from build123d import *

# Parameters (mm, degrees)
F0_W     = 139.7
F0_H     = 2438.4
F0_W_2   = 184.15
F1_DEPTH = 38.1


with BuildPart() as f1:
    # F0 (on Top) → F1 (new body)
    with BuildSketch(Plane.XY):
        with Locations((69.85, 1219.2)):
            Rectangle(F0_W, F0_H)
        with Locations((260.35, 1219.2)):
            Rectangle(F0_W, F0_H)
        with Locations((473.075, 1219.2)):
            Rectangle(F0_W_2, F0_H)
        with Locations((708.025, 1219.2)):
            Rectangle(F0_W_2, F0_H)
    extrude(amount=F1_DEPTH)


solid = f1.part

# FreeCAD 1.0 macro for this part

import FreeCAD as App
import Part
import Sketcher

V = App.Vector
Q = App.Units.Quantity

doc = App.newDocument("Part")
body = doc.addObject("PartDesign::Body", "Body")
body.AllowCompound = True

sketch1 = doc.addObject("Sketcher::SketchObject", "Sketch")
body.addObject(sketch1)
sketch1.AttachmentSupport = (doc.XY_Plane, [""])
sketch1.MapMode = "FlatFace"
sketch1.addGeometry(Part.LineSegment(V(0, 2438.4, 0), V(0, 0, 0)), False)
sketch1.addGeometry(Part.LineSegment(V(0, 0, 0), V(139.7, 0, 0)), False)
sketch1.addGeometry(Part.LineSegment(V(139.7, 0, 0), V(139.7, 2438.4, 0)), False)
sketch1.addGeometry(Part.LineSegment(V(139.7, 2438.4, 0), V(0, 2438.4, 0)), False)
sketch1.addGeometry(Part.LineSegment(V(190.5, 2438.4, 0), V(190.5, 0, 0)), False)
sketch1.addGeometry(Part.LineSegment(V(190.5, 0, 0), V(330.2, 0, 0)), False)
sketch1.addGeometry(Part.LineSegment(V(330.2, 0, 0), V(330.2, 2438.4, 0)), False)
sketch1.addGeometry(Part.LineSegment(V(330.2, 2438.4, 0), V(190.5, 2438.4, 0)), False)
sketch1.addGeometry(Part.LineSegment(V(381, 2438.4, 0), V(381, 0, 0)), False)
sketch1.addGeometry(Part.LineSegment(V(381, 0, 0), V(565.15, 0, 0)), False)
sketch1.addGeometry(Part.LineSegment(V(565.15, 0, 0), V(565.15, 2438.4, 0)), False)
sketch1.addGeometry(Part.LineSegment(V(565.15, 2438.4, 0), V(381, 2438.4, 0)), False)
sketch1.addGeometry(Part.LineSegment(V(615.95, 2438.4, 0), V(615.95, 0, 0)), False)
sketch1.addGeometry(Part.LineSegment(V(615.95, 0, 0), V(800.1, 0, 0)), False)
sketch1.addGeometry(Part.LineSegment(V(800.1, 0, 0), V(800.1, 2438.4, 0)), False)
sketch1.addGeometry(Part.LineSegment(V(800.1, 2438.4, 0), V(615.95, 2438.4, 0)), False)
sketch1.addConstraint(Sketcher.Constraint("Coincident", 0, 2, 1, 1))
sketch1.addConstraint(Sketcher.Constraint("Coincident", 1, 2, 2, 1))
sketch1.addConstraint(Sketcher.Constraint("Coincident", 2, 2, 3, 1))
sketch1.addConstraint(Sketcher.Constraint("Coincident", 3, 2, 0, 1))
sketch1.addConstraint(Sketcher.Constraint("Coincident", 4, 2, 5, 1))
sketch1.addConstraint(Sketcher.Constraint("Coincident", 5, 2, 6, 1))
sketch1.addConstraint(Sketcher.Constraint("Coincident", 6, 2, 7, 1))
sketch1.addConstraint(Sketcher.Constraint("Coincident", 7, 2, 4, 1))
sketch1.addConstraint(Sketcher.Constraint("Coincident", 8, 2, 9, 1))
sketch1.addConstraint(Sketcher.Constraint("Coincident", 9, 2, 10, 1))
sketch1.addConstraint(Sketcher.Constraint("Coincident", 10, 2, 11, 1))
sketch1.addConstraint(Sketcher.Constraint("Coincident", 11, 2, 8, 1))
sketch1.addConstraint(Sketcher.Constraint("Coincident", 12, 2, 13, 1))
sketch1.addConstraint(Sketcher.Constraint("Coincident", 13, 2, 14, 1))
sketch1.addConstraint(Sketcher.Constraint("Coincident", 14, 2, 15, 1))
sketch1.addConstraint(Sketcher.Constraint("Coincident", 15, 2, 12, 1))
sketch1.addConstraint(Sketcher.Constraint("Vertical", 0))
sketch1.addConstraint(Sketcher.Constraint("Horizontal", 1))
sketch1.addConstraint(Sketcher.Constraint("Vertical", 2))
sketch1.addConstraint(Sketcher.Constraint("Horizontal", 3))
sketch1.addConstraint(Sketcher.Constraint("Vertical", 4))
sketch1.addConstraint(Sketcher.Constraint("Horizontal", 5))
sketch1.addConstraint(Sketcher.Constraint("Vertical", 6))
sketch1.addConstraint(Sketcher.Constraint("Horizontal", 7))
sketch1.addConstraint(Sketcher.Constraint("Vertical", 8))
sketch1.addConstraint(Sketcher.Constraint("Horizontal", 9))
sketch1.addConstraint(Sketcher.Constraint("Vertical", 10))
sketch1.addConstraint(Sketcher.Constraint("Horizontal", 11))
sketch1.addConstraint(Sketcher.Constraint("Vertical", 12))
sketch1.addConstraint(Sketcher.Constraint("Horizontal", 13))
sketch1.addConstraint(Sketcher.Constraint("Vertical", 14))
sketch1.addConstraint(Sketcher.Constraint("Horizontal", 15))
sketch1.addConstraint(Sketcher.Constraint("Coincident", 0, 2, -1, 1))
sketch1.addConstraint(Sketcher.Constraint("PointOnObject", 4, 2, -1))
sketch1.addConstraint(Sketcher.Constraint("PointOnObject", 8, 2, -1))
sketch1.addConstraint(Sketcher.Constraint("PointOnObject", 12, 2, -1))
sketch1.addConstraint(Sketcher.Constraint("Horizontal", 3, 2, 6, 2))
sketch1.addConstraint(Sketcher.Constraint("Horizontal", 7, 2, 10, 2))
sketch1.addConstraint(Sketcher.Constraint("Horizontal", 11, 2, 14, 2))
sketch1.addConstraint(Sketcher.Constraint("Equal", 3, 5))
sketch1.addConstraint(Sketcher.Constraint("Equal", 11, 13))
sketch1.addConstraint(Sketcher.Constraint("DistanceY", 0, 2, 0, 1, Q("96 in")))
sketch1.addConstraint(Sketcher.Constraint("DistanceX", 1, 1, 1, 2, Q("5.5 in")))
sketch1.addConstraint(Sketcher.Constraint("DistanceX", -1, 1, 5, 2, Q("13 in")))
sketch1.addConstraint(Sketcher.Constraint("DistanceX", -1, 1, 8, 2, Q("15 in")))
sketch1.addConstraint(Sketcher.Constraint("DistanceX", 9, 2, 12, 2, Q("2 in")))
sketch1.addConstraint(Sketcher.Constraint("DistanceX", 4, 2, 13, 2, Q("24 in")))
pad1 = doc.addObject("PartDesign::Pad", "Pad")
body.addObject(pad1)
pad1.Profile = sketch1
pad1.Length = Q("1.5 in")

doc.recompute()
